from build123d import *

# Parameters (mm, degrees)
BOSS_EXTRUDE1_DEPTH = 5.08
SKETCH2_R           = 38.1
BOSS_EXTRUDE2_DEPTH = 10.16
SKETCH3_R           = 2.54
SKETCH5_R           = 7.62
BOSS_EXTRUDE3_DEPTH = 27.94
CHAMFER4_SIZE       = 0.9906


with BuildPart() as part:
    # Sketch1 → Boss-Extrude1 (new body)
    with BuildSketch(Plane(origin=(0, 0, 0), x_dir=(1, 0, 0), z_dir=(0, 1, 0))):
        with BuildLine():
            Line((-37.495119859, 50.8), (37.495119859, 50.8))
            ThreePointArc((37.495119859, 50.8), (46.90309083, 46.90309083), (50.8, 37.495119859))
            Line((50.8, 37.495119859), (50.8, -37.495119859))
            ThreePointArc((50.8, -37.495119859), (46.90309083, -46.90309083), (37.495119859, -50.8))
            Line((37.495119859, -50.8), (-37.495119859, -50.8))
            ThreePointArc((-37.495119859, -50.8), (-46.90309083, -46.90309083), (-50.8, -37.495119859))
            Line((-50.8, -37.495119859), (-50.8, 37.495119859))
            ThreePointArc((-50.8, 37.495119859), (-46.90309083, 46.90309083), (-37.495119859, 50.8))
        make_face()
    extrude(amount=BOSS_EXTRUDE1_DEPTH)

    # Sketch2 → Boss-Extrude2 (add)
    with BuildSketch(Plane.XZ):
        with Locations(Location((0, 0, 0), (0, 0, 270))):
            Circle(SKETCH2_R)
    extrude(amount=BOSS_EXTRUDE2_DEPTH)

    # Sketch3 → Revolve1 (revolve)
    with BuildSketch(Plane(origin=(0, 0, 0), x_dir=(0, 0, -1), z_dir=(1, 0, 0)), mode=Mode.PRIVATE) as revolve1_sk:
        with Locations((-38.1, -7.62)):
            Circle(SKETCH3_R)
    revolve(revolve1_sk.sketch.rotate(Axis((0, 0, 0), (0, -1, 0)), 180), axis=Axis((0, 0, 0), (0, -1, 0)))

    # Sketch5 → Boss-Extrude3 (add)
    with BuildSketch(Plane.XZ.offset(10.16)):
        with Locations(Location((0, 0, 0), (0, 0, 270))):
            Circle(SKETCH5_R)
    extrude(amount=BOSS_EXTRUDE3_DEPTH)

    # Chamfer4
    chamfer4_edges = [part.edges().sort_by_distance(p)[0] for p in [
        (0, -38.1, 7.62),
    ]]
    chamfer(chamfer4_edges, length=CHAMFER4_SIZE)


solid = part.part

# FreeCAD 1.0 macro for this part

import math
import FreeCAD as App
import Part
import Sketcher
Q = App.Units.Quantity


def edges_at(feature, points):
    """Names of the edges that pass closest to the given points."""
    edges = feature.Shape.Edges
    near = lambda p: min(range(len(edges)), key=lambda i: edges[i].distToShape(Part.Vertex(*p))[0])
    return sorted({f"Edge{near(p) + 1}" for p in points})

doc = App.newDocument("Part")
body = doc.addObject("PartDesign::Body", "Body")

sketch1 = body.newObject("Sketcher::SketchObject", "Sketch")
sketch1.AttachmentSupport = (doc.getObject("XZ_Plane"), [""])
sketch1.MapMode = "FlatFace"
sketch1.addGeometry(Part.LineSegment(App.Vector(37, -51, 0), App.Vector(-37, -51, 0)), False)
sketch1.addGeometry(Part.ArcOfCircle(Part.Circle(App.Vector(-37, -37, 0), App.Vector(0, 0, 1), 13), math.radians(180), math.radians(270)), False)
sketch1.addGeometry(Part.LineSegment(App.Vector(-51, -37, 0), App.Vector(-51, 37, 0)), False)
sketch1.addGeometry(Part.ArcOfCircle(Part.Circle(App.Vector(-37, 37, 0), App.Vector(0, 0, 1), 13), math.radians(90), math.radians(180)), False)
sketch1.addGeometry(Part.LineSegment(App.Vector(-37, 51, 0), App.Vector(37, 51, 0)), False)
sketch1.addGeometry(Part.ArcOfCircle(Part.Circle(App.Vector(37, 37, 0), App.Vector(0, 0, 1), 13), math.radians(0), math.radians(90)), False)
sketch1.addGeometry(Part.LineSegment(App.Vector(51, 37, 0), App.Vector(51, -37, 0)), False)
sketch1.addGeometry(Part.ArcOfCircle(Part.Circle(App.Vector(37, -37, 0), App.Vector(0, 0, 1), 13), math.radians(-90), math.radians(0)), False)
sketch1.addConstraint(Sketcher.Constraint("Tangent", 0, 2, 1, 2))
sketch1.addConstraint(Sketcher.Constraint("Tangent", 1, 1, 2, 1))
sketch1.addConstraint(Sketcher.Constraint("Tangent", 2, 2, 3, 2))
sketch1.addConstraint(Sketcher.Constraint("Tangent", 3, 1, 4, 1))
sketch1.addConstraint(Sketcher.Constraint("Tangent", 4, 2, 5, 2))
sketch1.addConstraint(Sketcher.Constraint("Tangent", 5, 1, 6, 1))
sketch1.addConstraint(Sketcher.Constraint("Tangent", 6, 2, 7, 2))
sketch1.addConstraint(Sketcher.Constraint("Tangent", 7, 1, 0, 1))
sketch1.addConstraint(Sketcher.Constraint("Horizontal", 0))
sketch1.addConstraint(Sketcher.Constraint("Vertical", 2))
sketch1.addConstraint(Sketcher.Constraint("Horizontal", 4))
sketch1.addConstraint(Sketcher.Constraint("Vertical", 6))
sketch1.addConstraint(Sketcher.Constraint("Equal", 1, 3))
sketch1.addConstraint(Sketcher.Constraint("Equal", 3, 5))
sketch1.addConstraint(Sketcher.Constraint("Equal", 5, 7))
sketch1.addConstraint(Sketcher.Constraint("Symmetric", 1, 3, 5, 3, -1, 1))
sketch1.addConstraint(Sketcher.Constraint("Equal", 4, 2))
sketch1.addConstraint(Sketcher.Constraint("DistanceY", 0, 2, -1, 1, Q("2 in")))
sketch1.addConstraint(Sketcher.Constraint("Radius", 1, 13.30488))
pad1 = body.newObject("PartDesign::Pad", "Pad")
pad1.Profile = sketch1
pad1.Length = Q("0.2 in")
pad1.Reversed = True

sketch2 = body.newObject("Sketcher::SketchObject", "Sketch001")
sketch2.AttachmentSupport = (doc.getObject("XZ_Plane"), [""])
sketch2.MapMode = "FlatFace"
sketch2.addGeometry(Part.Circle(App.Vector(0, 0, 0), App.Vector(0, 0, 1), 38), False)
sketch2.addConstraint(Sketcher.Constraint("Coincident", 0, 3, -1, 1))
sketch2.addConstraint(Sketcher.Constraint("Diameter", 0, Q("3 in")))
pad2 = body.newObject("PartDesign::Pad", "Pad001")
pad2.Profile = sketch2
pad2.Length = Q("0.4 in")

sketch3 = body.newObject("Sketcher::SketchObject", "Sketch002")
sketch3.AttachmentSupport = (doc.getObject("YZ_Plane"), [""])
sketch3.MapMode = "FlatFace"
sketch3.addGeometry(Part.Circle(App.Vector(-7.6, 38.1, 0), App.Vector(0, 0, 1), 2.5), False)
sketch3.addConstraint(Sketcher.Constraint("Diameter", 0, Q("0.2 in")))
sketch3.addConstraint(Sketcher.Constraint("DistanceX", 0, 3, -1, 1, Q("0.3 in")))
sketch3.addConstraint(Sketcher.Constraint("DistanceY", -1, 1, 0, 3, Q("1.5 in")))
revolution = body.newObject("PartDesign::Revolution", "Revolution")
revolution.Profile = sketch3
revolution.ReferenceAxis = (sketch3, ["H_Axis"])
revolution.Angle = 360

sketch4 = body.newObject("Sketcher::SketchObject", "Sketch003")
sketch4.AttachmentSupport = (doc.getObject("XZ_Plane"), [""])
sketch4.MapMode = "FlatFace"
sketch4.AttachmentOffset = App.Placement(App.Vector(0, 0, 0.4 * 25.4), App.Rotation())
sketch4.addGeometry(Part.Circle(App.Vector(0, 0, 0), App.Vector(0, 0, 1), 8), False)
sketch4.addConstraint(Sketcher.Constraint("Coincident", 0, 3, -1, 1))
sketch4.addConstraint(Sketcher.Constraint("Diameter", 0, Q("0.6 in")))
pad3 = body.newObject("PartDesign::Pad", "Pad002")
pad3.Profile = sketch4
pad3.Length = Q("1.1 in")
doc.recompute()

chamfer = body.newObject("PartDesign::Chamfer", "Chamfer")
chamfer.Base = (pad3, edges_at(pad3, [(0, -38.1, 7.62)]))
chamfer.Size = Q("0.039 in")

doc.recompute()
